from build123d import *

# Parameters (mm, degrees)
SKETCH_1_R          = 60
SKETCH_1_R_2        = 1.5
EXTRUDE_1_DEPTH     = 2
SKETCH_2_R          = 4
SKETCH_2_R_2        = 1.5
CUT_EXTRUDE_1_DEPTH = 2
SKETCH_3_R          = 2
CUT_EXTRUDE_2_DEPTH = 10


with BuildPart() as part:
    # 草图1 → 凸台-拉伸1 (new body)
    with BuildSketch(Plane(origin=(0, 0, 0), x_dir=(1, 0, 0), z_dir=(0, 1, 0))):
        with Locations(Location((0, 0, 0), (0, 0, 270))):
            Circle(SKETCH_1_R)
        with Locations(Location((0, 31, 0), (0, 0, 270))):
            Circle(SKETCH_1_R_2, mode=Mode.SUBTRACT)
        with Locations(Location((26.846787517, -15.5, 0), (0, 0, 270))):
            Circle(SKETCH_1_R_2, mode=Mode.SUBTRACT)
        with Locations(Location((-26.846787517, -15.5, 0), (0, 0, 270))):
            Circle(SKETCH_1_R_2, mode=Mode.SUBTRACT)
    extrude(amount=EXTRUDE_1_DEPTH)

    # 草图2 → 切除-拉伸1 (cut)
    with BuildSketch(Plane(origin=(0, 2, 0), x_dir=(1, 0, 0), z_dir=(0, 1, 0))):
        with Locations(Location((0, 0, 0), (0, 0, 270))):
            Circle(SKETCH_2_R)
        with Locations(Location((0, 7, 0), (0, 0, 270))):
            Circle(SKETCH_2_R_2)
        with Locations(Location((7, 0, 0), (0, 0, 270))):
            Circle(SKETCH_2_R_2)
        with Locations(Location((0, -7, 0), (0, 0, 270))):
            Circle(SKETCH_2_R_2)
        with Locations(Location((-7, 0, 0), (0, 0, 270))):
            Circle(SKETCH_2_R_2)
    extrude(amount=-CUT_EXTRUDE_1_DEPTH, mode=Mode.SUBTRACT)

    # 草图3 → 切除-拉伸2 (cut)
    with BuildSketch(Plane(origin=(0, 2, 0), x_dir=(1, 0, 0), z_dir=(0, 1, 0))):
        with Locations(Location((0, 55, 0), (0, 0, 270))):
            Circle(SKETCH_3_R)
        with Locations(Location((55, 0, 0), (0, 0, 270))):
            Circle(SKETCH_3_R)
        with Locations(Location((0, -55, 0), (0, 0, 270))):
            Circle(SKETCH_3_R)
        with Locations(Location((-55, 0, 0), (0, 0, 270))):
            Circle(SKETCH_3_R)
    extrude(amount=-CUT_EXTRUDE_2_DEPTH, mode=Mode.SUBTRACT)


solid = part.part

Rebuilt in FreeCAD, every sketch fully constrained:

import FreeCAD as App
import Part
import Sketcher
Q = App.Units.Quantity

doc = App.newDocument("Part")
params = doc.addObject("Spreadsheet::Sheet", "Params")
for row, (alias, value) in enumerate([
    ("sketch1_diameter", "120 mm"),
    ("sketch1_diameter2", "3 mm"),
    ("pad1_length", "2 mm"),
    ("sketch2_diameter", "8 mm"),
    ("sketch2_diameter2", "3 mm"),
    ("pocket1_length", "2 mm"),
    ("sketch3_diameter", "4 mm"),
    ("pocket2_length", "10 mm"),
], start=1):
    params.set(f"A{row}", alias)
    params.set(f"B{row}", "=" + value)
    params.setAlias(f"B{row}", alias)

body = doc.addObject("PartDesign::Body", "Body")

sketch1 = doc.addObject("Sketcher::SketchObject", "Sketch")
body.addObject(sketch1)
sketch1.AttachmentSupport = (doc.XZ_Plane, [""])
sketch1.MapMode = "FlatFace"
sketch1.addGeometry(Part.Circle(App.Vector(0, 0, 0), App.Vector(0, 0, 1), 60), False)
sketch1.addGeometry(Part.Circle(App.Vector(0, -31, 0), App.Vector(0, 0, 1), 1.5), False)
sketch1.addGeometry(Part.Circle(App.Vector(-26.8, 15.5, 0), App.Vector(0, 0, 1), 1.5), False)
sketch1.addGeometry(Part.Circle(App.Vector(26.8, 15.5, 0), App.Vector(0, 0, 1), 1.5), False)
sketch1.addConstraint(Sketcher.Constraint("Coincident", 0, 3, -1, 1))
sketch1.addConstraint(Sketcher.Constraint("Equal", 1, 2))
sketch1.addConstraint(Sketcher.Constraint("Equal", 2, 3))
sketch1.addConstraint(Sketcher.Constraint("Symmetric", 2, 3, 3, 3, -2))
sketch1.addConstraint(Sketcher.Constraint("PointOnObject", 1, 3, -2))
sketch1.addConstraint(Sketcher.Constraint("Diameter", 0, Q("120 mm")))
sketch1.addConstraint(Sketcher.Constraint("Diameter", 1, Q("3 mm")))
sketch1.addConstraint(Sketcher.Constraint("DistanceY", 1, 3, -1, 1, Q("31 mm")))
sketch1.addConstraint(Sketcher.Constraint("DistanceY", -1, 1, 2, 3, Q("15.5 mm")))
sketch1.addConstraint(Sketcher.Constraint("DistanceX", 2, 3, -1, 1, Q("26.846788 mm")))
sketch1.setExpression("Constraints[5]", "Params.sketch1_diameter")
sketch1.setExpression("Constraints[6]", "Params.sketch1_diameter2")
pad1 = doc.addObject("PartDesign::Pad", "Pad")
body.addObject(pad1)
pad1.Profile = sketch1
pad1.setExpression("Length", "Params.pad1_length")
pad1.Reversed = True

sketch2 = doc.addObject("Sketcher::SketchObject", "Sketch001")
body.addObject(sketch2)
sketch2.AttachmentSupport = (doc.XZ_Plane, [""])
sketch2.MapMode = "FlatFace"
sketch2.AttachmentOffset = App.Placement(App.Vector(0, 0, -2), App.Rotation())
sketch2.addGeometry(Part.Circle(App.Vector(0, 0, 0), App.Vector(0, 0, 1), 4), False)
sketch2.addGeometry(Part.Circle(App.Vector(0, -7, 0), App.Vector(0, 0, 1), 1.5), False)
sketch2.addGeometry(Part.Circle(App.Vector(7, 0, 0), App.Vector(0, 0, 1), 1.5), False)
sketch2.addGeometry(Part.Circle(App.Vector(0, 7, 0), App.Vector(0, 0, 1), 1.5), False)
sketch2.addGeometry(Part.Circle(App.Vector(-7, 0, 0), App.Vector(0, 0, 1), 1.5), False)
sketch2.addConstraint(Sketcher.Constraint("Coincident", 0, 3, -1, 1))
sketch2.addConstraint(Sketcher.Constraint("Equal", 1, 2))
sketch2.addConstraint(Sketcher.Constraint("Equal", 2, 3))
sketch2.addConstraint(Sketcher.Constraint("Equal", 3, 4))
sketch2.addConstraint(Sketcher.Constraint("Symmetric", 1, 3, 3, 3, -1, 1))
sketch2.addConstraint(Sketcher.Constraint("Symmetric", 2, 3, 4, 3, -1, 1))
sketch2.addConstraint(Sketcher.Constraint("PointOnObject", 1, 3, -2))
sketch2.addConstraint(Sketcher.Constraint("PointOnObject", 2, 3, -1))
sketch2.addConstraint(Sketcher.Constraint("Diameter", 0, Q("8 mm")))
sketch2.addConstraint(Sketcher.Constraint("Diameter", 1, Q("3 mm")))
sketch2.addConstraint(Sketcher.Constraint("DistanceY", 1, 3, -1, 1, Q("7 mm")))
sketch2.addConstraint(Sketcher.Constraint("DistanceX", -1, 1, 2, 3, Q("7 mm")))
sketch2.setExpression("Constraints[8]", "Params.sketch2_diameter")
sketch2.setExpression("Constraints[9]", "Params.sketch2_diameter2")
pocket1 = doc.addObject("PartDesign::Pocket", "Pocket")
body.addObject(pocket1)
pocket1.Profile = sketch2
pocket1.setExpression("Length", "Params.pocket1_length")
pocket1.Reversed = True

sketch3 = doc.addObject("Sketcher::SketchObject", "Sketch002")
body.addObject(sketch3)
sketch3.AttachmentSupport = (doc.XZ_Plane, [""])
sketch3.MapMode = "FlatFace"
sketch3.AttachmentOffset = App.Placement(App.Vector(0, 0, -2), App.Rotation())
sketch3.addGeometry(Part.Circle(App.Vector(0, -55, 0), App.Vector(0, 0, 1), 2), False)
sketch3.addGeometry(Part.Circle(App.Vector(55, 0, 0), App.Vector(0, 0, 1), 2), False)
sketch3.addGeometry(Part.Circle(App.Vector(0, 55, 0), App.Vector(0, 0, 1), 2), False)
sketch3.addGeometry(Part.Circle(App.Vector(-55, 0, 0), App.Vector(0, 0, 1), 2), False)
sketch3.addConstraint(Sketcher.Constraint("Equal", 0, 1))
sketch3.addConstraint(Sketcher.Constraint("Equal", 1, 2))
sketch3.addConstraint(Sketcher.Constraint("Equal", 2, 3))
sketch3.addConstraint(Sketcher.Constraint("Symmetric", 0, 3, 2, 3, -1, 1))
sketch3.addConstraint(Sketcher.Constraint("Symmetric", 1, 3, 3, 3, -1, 1))
sketch3.addConstraint(Sketcher.Constraint("PointOnObject", 0, 3, -2))
sketch3.addConstraint(Sketcher.Constraint("PointOnObject", 1, 3, -1))
sketch3.addConstraint(Sketcher.Constraint("Diameter", 0, Q("4 mm")))
sketch3.addConstraint(Sketcher.Constraint("DistanceY", 0, 3, -1, 1, Q("55 mm")))
sketch3.addConstraint(Sketcher.Constraint("DistanceX", -1, 1, 1, 3, Q("55 mm")))
sketch3.setExpression("Constraints[7]", "Params.sketch3_diameter")
pocket2 = doc.addObject("PartDesign::Pocket", "Pocket001")
body.addObject(pocket2)
pocket2.Profile = sketch3
pocket2.setExpression("Length", "Params.pocket2_length")
pocket2.Reversed = True

doc.recompute()
